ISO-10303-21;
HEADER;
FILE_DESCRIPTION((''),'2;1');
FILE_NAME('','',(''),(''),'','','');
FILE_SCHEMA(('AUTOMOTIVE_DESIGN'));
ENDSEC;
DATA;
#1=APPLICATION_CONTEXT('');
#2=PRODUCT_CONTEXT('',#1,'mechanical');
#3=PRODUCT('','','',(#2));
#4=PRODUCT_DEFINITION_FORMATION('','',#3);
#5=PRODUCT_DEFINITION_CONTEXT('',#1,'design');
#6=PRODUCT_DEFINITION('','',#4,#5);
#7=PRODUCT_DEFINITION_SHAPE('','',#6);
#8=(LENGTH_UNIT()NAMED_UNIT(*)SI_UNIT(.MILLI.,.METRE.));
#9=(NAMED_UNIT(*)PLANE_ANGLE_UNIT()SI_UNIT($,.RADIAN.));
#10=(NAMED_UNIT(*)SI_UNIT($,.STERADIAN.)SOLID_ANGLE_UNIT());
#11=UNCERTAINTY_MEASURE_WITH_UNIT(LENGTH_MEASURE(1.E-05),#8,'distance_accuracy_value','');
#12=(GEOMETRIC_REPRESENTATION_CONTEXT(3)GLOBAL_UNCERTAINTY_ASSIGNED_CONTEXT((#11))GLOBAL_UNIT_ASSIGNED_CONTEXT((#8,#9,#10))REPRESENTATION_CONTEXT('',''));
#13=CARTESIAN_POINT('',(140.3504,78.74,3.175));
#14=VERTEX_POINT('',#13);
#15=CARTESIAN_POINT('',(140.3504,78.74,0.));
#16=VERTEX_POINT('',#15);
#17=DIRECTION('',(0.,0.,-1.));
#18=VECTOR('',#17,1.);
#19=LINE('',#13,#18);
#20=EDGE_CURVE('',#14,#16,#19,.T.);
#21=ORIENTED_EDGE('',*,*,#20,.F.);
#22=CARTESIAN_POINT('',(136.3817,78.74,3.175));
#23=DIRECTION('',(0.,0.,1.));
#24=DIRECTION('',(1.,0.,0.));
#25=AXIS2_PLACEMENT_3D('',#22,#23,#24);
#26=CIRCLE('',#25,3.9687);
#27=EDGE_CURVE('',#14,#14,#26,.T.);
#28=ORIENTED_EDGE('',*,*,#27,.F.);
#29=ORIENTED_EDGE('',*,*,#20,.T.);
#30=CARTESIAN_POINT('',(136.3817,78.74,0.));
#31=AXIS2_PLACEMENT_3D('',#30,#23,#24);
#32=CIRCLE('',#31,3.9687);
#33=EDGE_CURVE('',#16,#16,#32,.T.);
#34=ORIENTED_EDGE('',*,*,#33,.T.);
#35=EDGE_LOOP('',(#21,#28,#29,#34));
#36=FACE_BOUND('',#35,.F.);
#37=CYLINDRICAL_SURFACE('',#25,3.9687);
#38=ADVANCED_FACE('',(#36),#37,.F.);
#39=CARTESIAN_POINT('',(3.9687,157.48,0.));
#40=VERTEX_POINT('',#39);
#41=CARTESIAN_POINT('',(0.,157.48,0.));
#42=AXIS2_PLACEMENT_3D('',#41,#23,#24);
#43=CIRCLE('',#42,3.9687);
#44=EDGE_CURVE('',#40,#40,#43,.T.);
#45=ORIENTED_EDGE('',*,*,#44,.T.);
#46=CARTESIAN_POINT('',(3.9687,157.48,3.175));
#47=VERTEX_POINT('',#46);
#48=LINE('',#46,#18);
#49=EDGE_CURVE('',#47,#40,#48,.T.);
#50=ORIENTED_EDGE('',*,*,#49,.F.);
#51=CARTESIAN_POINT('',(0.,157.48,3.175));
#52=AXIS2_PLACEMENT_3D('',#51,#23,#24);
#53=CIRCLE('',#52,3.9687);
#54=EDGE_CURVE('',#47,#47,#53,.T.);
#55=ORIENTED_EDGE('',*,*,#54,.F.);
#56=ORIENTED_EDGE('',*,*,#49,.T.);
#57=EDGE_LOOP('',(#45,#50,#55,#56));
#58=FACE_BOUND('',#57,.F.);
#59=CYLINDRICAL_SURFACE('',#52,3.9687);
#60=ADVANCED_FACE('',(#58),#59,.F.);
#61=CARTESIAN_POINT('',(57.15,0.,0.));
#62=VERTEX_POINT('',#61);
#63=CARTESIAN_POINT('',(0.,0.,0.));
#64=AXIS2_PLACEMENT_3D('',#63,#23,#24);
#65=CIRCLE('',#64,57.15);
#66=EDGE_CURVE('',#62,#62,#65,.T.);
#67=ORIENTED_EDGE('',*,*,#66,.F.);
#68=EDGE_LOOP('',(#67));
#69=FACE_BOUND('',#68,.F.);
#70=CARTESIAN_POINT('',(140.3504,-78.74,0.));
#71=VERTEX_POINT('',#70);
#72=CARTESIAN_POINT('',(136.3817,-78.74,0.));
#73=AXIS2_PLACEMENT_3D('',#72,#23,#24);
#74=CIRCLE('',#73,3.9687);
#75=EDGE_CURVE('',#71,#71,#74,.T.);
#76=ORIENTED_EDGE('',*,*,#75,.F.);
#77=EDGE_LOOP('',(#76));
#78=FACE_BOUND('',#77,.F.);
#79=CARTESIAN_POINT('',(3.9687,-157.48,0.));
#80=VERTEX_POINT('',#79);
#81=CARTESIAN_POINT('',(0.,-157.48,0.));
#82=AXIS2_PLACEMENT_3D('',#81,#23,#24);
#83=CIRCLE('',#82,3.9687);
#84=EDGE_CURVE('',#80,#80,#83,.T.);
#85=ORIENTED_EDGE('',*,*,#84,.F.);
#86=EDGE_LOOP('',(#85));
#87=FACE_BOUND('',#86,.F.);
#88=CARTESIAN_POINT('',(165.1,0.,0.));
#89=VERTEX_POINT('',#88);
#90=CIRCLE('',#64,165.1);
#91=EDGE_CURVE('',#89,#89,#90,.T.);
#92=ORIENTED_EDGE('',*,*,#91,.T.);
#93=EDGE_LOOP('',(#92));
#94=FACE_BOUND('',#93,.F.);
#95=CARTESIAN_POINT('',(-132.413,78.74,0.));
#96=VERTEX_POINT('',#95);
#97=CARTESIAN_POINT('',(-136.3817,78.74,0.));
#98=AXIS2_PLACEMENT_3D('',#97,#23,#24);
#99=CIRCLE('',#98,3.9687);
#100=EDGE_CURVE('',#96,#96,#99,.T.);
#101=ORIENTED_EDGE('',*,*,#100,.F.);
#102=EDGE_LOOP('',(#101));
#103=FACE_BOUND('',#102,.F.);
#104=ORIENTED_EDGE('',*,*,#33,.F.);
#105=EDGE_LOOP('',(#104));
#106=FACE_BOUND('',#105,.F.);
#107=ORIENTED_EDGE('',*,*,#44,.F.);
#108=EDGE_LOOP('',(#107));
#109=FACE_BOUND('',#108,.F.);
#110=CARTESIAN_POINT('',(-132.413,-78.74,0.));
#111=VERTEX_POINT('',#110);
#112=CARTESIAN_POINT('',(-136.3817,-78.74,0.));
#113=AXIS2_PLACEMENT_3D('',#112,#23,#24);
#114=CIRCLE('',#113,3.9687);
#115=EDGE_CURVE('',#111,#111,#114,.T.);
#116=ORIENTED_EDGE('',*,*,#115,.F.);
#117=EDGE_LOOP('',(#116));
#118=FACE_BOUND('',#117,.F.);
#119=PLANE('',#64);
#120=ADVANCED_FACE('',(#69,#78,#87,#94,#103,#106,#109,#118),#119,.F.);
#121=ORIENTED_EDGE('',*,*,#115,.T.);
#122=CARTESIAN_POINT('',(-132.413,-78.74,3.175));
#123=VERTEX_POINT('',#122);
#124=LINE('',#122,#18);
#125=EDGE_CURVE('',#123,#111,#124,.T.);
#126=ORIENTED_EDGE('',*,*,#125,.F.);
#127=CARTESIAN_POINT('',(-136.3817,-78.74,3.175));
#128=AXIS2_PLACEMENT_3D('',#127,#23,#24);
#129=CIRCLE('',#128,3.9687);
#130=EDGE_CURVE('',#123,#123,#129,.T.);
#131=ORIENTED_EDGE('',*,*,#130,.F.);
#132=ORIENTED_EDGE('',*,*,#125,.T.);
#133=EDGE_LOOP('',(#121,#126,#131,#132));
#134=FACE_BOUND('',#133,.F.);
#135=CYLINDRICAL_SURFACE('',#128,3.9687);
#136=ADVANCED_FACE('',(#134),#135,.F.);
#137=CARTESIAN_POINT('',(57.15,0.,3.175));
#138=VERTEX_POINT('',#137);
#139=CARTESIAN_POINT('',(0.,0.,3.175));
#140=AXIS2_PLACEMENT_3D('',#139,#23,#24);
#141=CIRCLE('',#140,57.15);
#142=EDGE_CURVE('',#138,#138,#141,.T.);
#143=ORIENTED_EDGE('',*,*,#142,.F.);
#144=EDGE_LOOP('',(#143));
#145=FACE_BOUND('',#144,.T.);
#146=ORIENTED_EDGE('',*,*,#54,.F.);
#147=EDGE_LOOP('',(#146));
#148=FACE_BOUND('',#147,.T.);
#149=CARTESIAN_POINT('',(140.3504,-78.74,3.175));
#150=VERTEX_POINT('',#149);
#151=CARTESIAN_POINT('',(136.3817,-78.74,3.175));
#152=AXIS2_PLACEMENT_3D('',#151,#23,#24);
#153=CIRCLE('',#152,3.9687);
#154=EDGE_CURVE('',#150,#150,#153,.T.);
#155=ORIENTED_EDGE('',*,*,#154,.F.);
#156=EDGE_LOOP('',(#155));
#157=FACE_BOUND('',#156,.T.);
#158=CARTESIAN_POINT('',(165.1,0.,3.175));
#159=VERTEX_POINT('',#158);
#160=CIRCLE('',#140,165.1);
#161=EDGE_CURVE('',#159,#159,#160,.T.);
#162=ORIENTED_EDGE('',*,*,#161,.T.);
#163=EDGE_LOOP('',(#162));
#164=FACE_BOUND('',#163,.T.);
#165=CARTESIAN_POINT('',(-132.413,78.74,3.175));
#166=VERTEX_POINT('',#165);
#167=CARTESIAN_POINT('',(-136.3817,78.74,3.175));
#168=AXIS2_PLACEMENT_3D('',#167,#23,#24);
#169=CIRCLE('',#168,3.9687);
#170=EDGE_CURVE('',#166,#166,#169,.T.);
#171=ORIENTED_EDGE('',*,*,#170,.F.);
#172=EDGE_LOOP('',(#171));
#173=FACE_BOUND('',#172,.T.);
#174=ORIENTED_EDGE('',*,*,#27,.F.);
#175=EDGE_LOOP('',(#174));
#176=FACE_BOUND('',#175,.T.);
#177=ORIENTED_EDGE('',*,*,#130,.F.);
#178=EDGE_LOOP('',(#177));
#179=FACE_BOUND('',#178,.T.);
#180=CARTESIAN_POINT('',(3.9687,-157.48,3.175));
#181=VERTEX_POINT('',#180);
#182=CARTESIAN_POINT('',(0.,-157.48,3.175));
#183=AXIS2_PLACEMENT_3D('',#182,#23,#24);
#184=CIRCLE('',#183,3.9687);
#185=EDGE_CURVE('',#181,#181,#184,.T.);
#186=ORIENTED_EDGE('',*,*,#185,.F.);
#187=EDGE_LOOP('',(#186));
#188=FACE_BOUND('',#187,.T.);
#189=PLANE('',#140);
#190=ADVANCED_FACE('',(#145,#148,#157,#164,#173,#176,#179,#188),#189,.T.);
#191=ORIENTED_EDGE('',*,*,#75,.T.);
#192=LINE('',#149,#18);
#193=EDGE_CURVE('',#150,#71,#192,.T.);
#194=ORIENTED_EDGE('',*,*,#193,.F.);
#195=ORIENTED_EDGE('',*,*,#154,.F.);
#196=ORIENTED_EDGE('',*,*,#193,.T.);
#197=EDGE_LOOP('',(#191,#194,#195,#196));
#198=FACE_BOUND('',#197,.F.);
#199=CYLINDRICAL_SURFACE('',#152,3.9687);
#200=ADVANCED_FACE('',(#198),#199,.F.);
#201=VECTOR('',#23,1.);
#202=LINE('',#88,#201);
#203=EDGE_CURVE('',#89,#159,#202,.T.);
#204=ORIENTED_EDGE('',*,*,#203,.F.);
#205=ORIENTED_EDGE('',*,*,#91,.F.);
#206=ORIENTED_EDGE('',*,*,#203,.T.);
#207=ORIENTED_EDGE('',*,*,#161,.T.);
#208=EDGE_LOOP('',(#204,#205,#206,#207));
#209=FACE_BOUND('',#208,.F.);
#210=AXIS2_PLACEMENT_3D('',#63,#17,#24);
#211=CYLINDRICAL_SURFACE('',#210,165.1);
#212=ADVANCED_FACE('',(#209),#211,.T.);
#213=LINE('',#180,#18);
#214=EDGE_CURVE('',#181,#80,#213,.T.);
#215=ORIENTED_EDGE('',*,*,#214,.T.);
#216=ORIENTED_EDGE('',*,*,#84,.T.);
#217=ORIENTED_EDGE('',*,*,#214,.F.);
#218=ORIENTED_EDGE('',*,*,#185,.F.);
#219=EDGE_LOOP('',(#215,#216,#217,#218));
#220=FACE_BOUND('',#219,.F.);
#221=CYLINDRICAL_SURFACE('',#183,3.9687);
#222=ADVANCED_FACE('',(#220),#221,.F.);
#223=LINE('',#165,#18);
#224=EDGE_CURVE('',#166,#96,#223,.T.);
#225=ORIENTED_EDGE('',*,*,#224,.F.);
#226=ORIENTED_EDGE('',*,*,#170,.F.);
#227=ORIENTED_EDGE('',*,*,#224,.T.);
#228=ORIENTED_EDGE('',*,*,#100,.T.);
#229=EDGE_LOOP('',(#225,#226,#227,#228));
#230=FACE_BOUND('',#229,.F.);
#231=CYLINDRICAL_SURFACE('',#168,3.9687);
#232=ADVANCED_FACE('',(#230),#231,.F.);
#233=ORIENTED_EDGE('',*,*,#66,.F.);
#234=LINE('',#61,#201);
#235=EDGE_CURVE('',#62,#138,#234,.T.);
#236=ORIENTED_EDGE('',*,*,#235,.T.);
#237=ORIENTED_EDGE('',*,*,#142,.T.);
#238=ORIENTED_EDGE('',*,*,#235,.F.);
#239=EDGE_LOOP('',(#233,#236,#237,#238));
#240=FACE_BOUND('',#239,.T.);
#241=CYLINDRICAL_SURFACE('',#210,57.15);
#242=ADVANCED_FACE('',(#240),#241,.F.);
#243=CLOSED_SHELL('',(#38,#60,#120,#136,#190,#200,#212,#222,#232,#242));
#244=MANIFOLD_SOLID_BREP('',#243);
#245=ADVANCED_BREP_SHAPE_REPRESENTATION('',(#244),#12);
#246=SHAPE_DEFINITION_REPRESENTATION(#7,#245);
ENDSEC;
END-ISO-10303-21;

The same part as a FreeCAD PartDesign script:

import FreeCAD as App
import Part
import Sketcher
Q = App.Units.Quantity

doc = App.newDocument("Part")
body = doc.addObject("PartDesign::Body", "Body")

# Sketch on XY plane
sketch1 = doc.addObject("Sketcher::SketchObject", "Sketch")
body.addObject(sketch1)
sketch1.AttachmentSupport = (doc.XY_Plane, [""])
sketch1.MapMode = "FlatFace"
sketch1.addGeometry(Part.Circle(App.Vector(0, 0, 0), App.Vector(0, 0, 1), 165.1), False)
sketch1.addGeometry(Part.Circle(App.Vector(0, 0, 0), App.Vector(0, 0, 1), 57.15), False)
sketch1.addConstraint(Sketcher.Constraint("Coincident", 0, 3, -1, 1))
sketch1.addConstraint(Sketcher.Constraint("Coincident", 1, 3, -1, 1))
sketch1.addConstraint(Sketcher.Constraint("Diameter", 0, Q("13 in")))
sketch1.addConstraint(Sketcher.Constraint("Diameter", 1, Q("4.5 in")))
pad1 = doc.addObject("PartDesign::Pad", "Pad")
body.addObject(pad1)
pad1.Profile = sketch1
pad1.Length = Q("0.125 in")

# Sketch on XY plane
sketch2 = doc.addObject("Sketcher::SketchObject", "Sketch001")
body.addObject(sketch2)
sketch2.AttachmentSupport = (doc.XY_Plane, [""])
sketch2.MapMode = "FlatFace"
sketch2.AttachmentOffset = App.Placement(App.Vector(0, 0, 0.125 * 25.4), App.Rotation())
sketch2.addGeometry(Part.Circle(App.Vector(0, 157.48, 0), App.Vector(0, 0, 1), 3.9687), False)
sketch2.addGeometry(Part.Circle(App.Vector(-136.3817, 78.74, 0), App.Vector(0, 0, 1), 3.9687), False)
sketch2.addGeometry(Part.Circle(App.Vector(-136.3817, -78.74, 0), App.Vector(0, 0, 1), 3.9687), False)
sketch2.addGeometry(Part.Circle(App.Vector(0, -157.48, 0), App.Vector(0, 0, 1), 3.9687), False)
sketch2.addGeometry(Part.Circle(App.Vector(136.3817, -78.74, 0), App.Vector(0, 0, 1), 3.9687), False)
sketch2.addGeometry(Part.Circle(App.Vector(136.3817, 78.74, 0), App.Vector(0, 0, 1), 3.9687), False)
sketch2.addConstraint(Sketcher.Constraint("Equal", 0, 1))
sketch2.addConstraint(Sketcher.Constraint("Equal", 1, 2))
sketch2.addConstraint(Sketcher.Constraint("Equal", 2, 3))
sketch2.addConstraint(Sketcher.Constraint("Equal", 3, 4))
sketch2.addConstraint(Sketcher.Constraint("Equal", 4, 5))
sketch2.addConstraint(Sketcher.Constraint("Symmetric", 0, 3, 3, 3, -1, 1))
sketch2.addConstraint(Sketcher.Constraint("Symmetric", 1, 3, 4, 3, -1, 1))
sketch2.addConstraint(Sketcher.Constraint("Symmetric", 2, 3, 5, 3, -1, 1))
sketch2.addConstraint(Sketcher.Constraint("Symmetric", 2, 3, 4, 3, -2))
sketch2.addConstraint(Sketcher.Constraint("PointOnObject", 0, 3, -2))
sketch2.addConstraint(Sketcher.Constraint("Diameter", 0, Q("0.3125 in")))
sketch2.addConstraint(Sketcher.Constraint("DistanceY", 3, 3, 0, 3, Q("12.4 in")))
sketch2.addConstraint(Sketcher.Constraint("DistanceY", -1, 1, 1, 3, Q("3.1 in")))
sketch2.addConstraint(Sketcher.Constraint("DistanceX", 1, 3, -1, 1, 136.3817))
pocket1 = doc.addObject("PartDesign::Pocket", "Pocket")
body.addObject(pocket1)
pocket1.Profile = sketch2
pocket1.Type = "ThroughAll"

doc.recompute()
